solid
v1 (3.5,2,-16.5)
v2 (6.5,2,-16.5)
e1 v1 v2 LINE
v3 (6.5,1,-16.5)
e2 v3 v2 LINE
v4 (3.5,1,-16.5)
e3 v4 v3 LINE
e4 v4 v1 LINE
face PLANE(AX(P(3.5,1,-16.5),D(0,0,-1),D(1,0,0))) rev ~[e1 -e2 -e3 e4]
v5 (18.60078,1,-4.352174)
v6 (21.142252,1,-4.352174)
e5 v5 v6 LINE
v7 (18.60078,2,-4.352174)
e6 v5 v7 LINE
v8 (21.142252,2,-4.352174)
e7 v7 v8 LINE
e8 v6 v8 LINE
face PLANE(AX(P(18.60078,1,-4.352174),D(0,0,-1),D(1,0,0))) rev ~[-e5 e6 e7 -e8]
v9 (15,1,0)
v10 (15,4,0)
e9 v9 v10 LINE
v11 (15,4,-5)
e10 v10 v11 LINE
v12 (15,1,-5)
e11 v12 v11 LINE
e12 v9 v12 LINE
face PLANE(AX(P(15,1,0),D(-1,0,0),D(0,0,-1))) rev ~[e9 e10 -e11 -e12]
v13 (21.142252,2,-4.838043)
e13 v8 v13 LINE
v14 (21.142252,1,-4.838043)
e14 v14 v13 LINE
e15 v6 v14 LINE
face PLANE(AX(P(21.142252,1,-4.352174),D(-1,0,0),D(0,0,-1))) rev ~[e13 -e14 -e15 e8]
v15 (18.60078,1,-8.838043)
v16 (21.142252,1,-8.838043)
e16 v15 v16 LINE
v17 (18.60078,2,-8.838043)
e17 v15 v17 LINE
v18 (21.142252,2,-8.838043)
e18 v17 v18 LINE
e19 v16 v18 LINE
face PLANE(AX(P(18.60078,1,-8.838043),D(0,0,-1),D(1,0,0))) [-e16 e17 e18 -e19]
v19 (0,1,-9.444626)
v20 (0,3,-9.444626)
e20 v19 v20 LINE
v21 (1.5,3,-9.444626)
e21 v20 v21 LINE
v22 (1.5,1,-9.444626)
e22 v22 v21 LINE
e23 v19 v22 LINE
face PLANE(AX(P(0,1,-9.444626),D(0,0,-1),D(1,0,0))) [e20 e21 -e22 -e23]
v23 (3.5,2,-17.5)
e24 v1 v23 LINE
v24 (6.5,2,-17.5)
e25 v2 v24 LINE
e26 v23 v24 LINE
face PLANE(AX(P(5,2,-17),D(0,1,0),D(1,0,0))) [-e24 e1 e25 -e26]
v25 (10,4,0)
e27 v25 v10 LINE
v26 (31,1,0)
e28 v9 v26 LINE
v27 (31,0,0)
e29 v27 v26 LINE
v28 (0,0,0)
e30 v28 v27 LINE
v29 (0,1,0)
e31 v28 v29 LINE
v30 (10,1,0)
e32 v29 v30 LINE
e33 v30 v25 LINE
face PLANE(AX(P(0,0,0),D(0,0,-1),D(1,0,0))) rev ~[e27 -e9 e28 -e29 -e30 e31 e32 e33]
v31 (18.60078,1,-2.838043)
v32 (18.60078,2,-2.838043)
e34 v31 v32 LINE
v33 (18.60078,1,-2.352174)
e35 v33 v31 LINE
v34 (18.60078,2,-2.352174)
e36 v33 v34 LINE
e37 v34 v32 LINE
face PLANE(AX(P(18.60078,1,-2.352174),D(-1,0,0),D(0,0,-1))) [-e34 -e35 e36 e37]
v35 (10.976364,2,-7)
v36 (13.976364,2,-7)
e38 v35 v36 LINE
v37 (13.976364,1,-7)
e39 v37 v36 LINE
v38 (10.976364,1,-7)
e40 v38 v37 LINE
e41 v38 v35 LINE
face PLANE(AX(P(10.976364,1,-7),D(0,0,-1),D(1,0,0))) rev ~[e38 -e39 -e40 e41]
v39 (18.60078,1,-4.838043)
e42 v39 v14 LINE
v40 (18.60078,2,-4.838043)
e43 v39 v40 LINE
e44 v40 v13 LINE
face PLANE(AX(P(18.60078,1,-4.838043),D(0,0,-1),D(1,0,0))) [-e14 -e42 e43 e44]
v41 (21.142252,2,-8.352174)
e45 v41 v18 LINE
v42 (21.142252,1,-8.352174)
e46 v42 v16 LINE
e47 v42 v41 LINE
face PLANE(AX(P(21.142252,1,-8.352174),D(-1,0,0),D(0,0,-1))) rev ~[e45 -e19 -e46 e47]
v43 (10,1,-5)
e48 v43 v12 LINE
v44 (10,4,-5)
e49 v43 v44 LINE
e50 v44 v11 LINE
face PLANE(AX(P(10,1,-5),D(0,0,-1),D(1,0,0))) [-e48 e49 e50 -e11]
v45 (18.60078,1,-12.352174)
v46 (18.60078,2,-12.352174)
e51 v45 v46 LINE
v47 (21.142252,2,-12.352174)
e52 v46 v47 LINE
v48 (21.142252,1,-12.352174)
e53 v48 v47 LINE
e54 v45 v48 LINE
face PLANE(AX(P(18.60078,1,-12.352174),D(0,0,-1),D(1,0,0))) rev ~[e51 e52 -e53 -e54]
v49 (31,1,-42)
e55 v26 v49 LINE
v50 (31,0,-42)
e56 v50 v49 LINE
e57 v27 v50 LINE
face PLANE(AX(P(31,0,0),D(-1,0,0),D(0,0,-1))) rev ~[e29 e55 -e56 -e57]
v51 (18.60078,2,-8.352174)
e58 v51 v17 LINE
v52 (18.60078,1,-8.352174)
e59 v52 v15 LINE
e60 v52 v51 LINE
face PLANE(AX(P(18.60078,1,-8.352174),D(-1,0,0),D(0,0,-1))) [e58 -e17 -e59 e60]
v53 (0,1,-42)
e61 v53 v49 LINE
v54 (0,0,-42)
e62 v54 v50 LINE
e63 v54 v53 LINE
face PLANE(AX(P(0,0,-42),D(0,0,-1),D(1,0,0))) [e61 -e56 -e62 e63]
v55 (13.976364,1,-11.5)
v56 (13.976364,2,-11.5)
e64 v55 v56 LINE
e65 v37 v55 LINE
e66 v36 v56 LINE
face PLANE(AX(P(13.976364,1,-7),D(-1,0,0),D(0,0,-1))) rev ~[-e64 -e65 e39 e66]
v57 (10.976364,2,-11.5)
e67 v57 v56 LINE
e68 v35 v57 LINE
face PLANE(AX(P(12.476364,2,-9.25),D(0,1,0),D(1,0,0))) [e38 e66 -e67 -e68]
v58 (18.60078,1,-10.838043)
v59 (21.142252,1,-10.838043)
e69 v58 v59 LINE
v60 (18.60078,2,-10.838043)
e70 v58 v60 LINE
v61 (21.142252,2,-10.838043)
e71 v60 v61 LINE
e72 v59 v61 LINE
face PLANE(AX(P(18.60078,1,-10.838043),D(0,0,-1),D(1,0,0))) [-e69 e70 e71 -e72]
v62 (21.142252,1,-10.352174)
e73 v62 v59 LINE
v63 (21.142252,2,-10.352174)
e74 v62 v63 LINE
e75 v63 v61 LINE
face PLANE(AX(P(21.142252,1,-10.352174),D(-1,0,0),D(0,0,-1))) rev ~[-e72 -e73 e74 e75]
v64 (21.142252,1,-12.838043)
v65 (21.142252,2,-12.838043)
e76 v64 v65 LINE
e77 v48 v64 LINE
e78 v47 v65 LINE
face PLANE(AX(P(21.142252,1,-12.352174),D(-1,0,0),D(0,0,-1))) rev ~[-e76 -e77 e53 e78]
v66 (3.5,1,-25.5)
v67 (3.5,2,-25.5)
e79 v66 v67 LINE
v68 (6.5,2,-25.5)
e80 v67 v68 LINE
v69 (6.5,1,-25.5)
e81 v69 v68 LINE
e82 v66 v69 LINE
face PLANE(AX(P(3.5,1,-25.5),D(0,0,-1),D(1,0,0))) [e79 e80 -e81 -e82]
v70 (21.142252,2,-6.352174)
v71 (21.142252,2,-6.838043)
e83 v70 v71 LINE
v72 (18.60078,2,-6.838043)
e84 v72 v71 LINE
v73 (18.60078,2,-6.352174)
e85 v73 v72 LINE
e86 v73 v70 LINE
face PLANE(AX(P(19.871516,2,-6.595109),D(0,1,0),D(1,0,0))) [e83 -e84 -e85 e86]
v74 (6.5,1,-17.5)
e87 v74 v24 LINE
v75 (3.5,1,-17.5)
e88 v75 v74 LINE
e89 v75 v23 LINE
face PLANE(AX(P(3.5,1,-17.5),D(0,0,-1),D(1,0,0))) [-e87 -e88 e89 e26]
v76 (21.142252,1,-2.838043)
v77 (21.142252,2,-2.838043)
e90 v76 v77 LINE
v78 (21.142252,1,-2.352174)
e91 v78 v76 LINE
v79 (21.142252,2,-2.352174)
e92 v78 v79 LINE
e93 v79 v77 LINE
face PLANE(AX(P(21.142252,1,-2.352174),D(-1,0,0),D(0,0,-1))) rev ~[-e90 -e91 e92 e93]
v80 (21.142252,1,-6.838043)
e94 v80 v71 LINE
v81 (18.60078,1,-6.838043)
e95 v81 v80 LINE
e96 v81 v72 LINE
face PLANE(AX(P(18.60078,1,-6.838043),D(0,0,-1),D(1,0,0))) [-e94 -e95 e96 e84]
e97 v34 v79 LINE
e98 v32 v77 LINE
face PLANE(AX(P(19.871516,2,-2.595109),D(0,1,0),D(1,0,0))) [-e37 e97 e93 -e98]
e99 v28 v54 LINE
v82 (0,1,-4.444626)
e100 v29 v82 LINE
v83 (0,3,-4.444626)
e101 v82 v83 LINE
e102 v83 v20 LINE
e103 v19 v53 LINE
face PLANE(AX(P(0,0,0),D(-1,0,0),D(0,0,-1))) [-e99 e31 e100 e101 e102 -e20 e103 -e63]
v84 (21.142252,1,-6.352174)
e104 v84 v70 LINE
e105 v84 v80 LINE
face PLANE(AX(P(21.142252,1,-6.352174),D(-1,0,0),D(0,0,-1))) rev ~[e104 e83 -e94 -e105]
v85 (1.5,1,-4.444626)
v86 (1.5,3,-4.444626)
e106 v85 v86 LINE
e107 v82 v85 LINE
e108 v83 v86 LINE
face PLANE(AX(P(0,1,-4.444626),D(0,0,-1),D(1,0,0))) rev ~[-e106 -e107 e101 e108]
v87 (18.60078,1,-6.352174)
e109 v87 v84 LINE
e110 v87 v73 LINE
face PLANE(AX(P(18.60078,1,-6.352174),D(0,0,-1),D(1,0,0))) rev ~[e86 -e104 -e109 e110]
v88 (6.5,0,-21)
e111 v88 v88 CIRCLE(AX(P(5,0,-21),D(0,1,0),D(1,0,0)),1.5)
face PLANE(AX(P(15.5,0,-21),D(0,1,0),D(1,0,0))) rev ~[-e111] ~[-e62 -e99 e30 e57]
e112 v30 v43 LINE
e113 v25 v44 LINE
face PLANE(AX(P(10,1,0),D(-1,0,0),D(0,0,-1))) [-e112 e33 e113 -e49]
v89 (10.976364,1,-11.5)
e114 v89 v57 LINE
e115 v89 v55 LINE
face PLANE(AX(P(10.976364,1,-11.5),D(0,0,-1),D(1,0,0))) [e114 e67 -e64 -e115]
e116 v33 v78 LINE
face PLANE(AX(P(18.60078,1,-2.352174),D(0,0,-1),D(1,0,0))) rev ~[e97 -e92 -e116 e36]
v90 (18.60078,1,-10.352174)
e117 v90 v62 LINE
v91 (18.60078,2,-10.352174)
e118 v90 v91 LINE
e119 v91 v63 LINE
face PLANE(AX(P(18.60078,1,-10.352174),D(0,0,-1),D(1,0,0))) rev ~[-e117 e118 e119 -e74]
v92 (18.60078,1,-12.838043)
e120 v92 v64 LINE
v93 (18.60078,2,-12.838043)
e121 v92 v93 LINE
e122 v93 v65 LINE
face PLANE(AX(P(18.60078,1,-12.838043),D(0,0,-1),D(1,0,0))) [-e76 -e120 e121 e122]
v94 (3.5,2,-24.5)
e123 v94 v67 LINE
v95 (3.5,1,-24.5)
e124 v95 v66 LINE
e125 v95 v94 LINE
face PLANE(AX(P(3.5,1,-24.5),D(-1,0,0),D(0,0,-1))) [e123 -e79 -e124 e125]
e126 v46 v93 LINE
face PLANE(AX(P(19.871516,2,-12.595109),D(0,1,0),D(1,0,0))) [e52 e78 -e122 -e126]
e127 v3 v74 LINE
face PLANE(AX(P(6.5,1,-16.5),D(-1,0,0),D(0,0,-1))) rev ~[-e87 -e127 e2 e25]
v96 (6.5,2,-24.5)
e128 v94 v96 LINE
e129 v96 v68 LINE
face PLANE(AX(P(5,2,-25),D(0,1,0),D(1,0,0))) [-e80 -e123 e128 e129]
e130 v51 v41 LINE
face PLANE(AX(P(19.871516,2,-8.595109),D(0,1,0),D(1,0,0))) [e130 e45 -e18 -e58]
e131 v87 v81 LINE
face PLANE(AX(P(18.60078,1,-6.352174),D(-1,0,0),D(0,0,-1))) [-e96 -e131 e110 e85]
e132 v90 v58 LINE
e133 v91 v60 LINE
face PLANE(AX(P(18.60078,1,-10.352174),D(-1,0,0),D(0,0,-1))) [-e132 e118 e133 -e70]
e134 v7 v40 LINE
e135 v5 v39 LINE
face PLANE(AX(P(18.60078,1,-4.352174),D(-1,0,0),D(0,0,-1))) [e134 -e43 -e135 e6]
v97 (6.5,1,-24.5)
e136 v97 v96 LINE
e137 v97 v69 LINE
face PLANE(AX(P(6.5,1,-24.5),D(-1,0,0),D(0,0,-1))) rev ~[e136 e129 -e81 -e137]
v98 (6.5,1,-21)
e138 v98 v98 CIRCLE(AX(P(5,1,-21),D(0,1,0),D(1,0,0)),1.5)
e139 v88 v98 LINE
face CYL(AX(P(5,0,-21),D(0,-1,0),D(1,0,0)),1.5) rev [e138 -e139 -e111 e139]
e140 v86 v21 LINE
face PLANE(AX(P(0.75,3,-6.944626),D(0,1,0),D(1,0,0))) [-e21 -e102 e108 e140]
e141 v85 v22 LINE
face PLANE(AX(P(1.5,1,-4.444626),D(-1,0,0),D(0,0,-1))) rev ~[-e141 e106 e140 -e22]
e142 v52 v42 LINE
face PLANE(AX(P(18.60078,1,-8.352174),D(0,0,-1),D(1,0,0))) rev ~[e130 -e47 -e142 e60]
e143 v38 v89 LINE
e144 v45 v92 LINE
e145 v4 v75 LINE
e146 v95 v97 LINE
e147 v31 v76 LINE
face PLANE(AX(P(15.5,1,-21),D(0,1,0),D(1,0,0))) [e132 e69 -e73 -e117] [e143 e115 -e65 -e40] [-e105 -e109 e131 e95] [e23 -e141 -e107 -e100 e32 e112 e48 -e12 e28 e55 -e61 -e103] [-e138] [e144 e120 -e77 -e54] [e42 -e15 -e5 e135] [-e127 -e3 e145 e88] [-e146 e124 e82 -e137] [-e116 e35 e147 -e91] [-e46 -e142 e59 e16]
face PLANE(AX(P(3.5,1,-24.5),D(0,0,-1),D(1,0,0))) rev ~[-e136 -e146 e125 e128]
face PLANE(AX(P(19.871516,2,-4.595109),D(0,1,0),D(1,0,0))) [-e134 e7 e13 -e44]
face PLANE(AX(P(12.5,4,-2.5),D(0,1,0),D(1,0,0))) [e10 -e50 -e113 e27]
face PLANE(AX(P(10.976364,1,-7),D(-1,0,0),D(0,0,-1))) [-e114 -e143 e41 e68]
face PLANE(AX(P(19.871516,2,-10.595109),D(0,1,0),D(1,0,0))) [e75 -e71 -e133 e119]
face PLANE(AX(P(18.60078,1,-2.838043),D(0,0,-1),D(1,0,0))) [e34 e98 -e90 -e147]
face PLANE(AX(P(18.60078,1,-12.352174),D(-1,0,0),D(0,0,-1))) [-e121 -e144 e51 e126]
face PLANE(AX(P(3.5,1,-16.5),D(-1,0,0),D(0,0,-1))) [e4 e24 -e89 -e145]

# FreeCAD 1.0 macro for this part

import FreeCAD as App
import Part
import Sketcher

V = App.Vector
Q = App.Units.Quantity


def add_polygon(sketch, points):
    """Adds a closed chain of lines whose ends are joined by coincident constraints."""
    first, n = sketch.GeometryCount, len(points)
    for a, b in zip(points, points[1:] + points[:1]):
        sketch.addGeometry(Part.LineSegment(App.Vector(*a, 0), App.Vector(*b, 0)), False)
    for i in range(n):
        sketch.addConstraint(Sketcher.Constraint("Coincident", first + i, 2, first + (i + 1) % n, 1))

doc = App.newDocument("Part")
body = doc.addObject("PartDesign::Body", "Body")

# Sketch on XZ plane
sketch1 = body.newObject("Sketcher::SketchObject", "Sketch")
sketch1.AttachmentSupport = (doc.getObject("XZ_Plane"), [""])
sketch1.MapMode = "FlatFace"
add_polygon(sketch1, [(0, -42), (0, 0), (31, 0), (31, -42)])  # lines 0-3
sketch1.addGeometry(Part.Circle(V(5, -21, 0), V(0, 0, 1), 1.5), False)  # 4
sketch1.addConstraint(Sketcher.Constraint("Vertical", 0))
sketch1.addConstraint(Sketcher.Constraint("Horizontal", 1))
sketch1.addConstraint(Sketcher.Constraint("Vertical", 2))
sketch1.addConstraint(Sketcher.Constraint("Horizontal", 3))
sketch1.addConstraint(Sketcher.Constraint("Coincident", 0, 2, -1, 1))
sketch1.addConstraint(Sketcher.Constraint("Diameter", 4, Q("3 mm")))
sketch1.addConstraint(Sketcher.Constraint("DistanceX", 1, 1, 1, 2, Q("31 mm")))
sketch1.addConstraint(Sketcher.Constraint("DistanceY", 0, 1, 0, 2, Q("42 mm")))
sketch1.addConstraint(Sketcher.Constraint("DistanceX", -1, 1, 4, 3, Q("5 mm")))
sketch1.addConstraint(Sketcher.Constraint("DistanceY", 4, 3, -1, 1, Q("21 mm")))
pad1 = body.newObject("PartDesign::Pad", "Pad")
pad1.Profile = sketch1
pad1.Length = 1
pad1.Reversed = True

# Sketch on XZ plane
sketch2 = body.newObject("Sketcher::SketchObject", "Sketch001")
sketch2.AttachmentSupport = (doc.getObject("XZ_Plane"), [""])
sketch2.MapMode = "FlatFace"
sketch2.AttachmentOffset = App.Placement(V(0, 0, -1), App.Rotation())
add_polygon(sketch2, [(10, -5), (10, 0), (15, 0), (15, -5)])  # lines 0-3
sketch2.addConstraint(Sketcher.Constraint("Vertical", 0))
sketch2.addConstraint(Sketcher.Constraint("Horizontal", 1))
sketch2.addConstraint(Sketcher.Constraint("Vertical", 2))
sketch2.addConstraint(Sketcher.Constraint("Horizontal", 3))
sketch2.addConstraint(Sketcher.Constraint("PointOnObject", 0, 2, -1))
sketch2.addConstraint(Sketcher.Constraint("Equal", 3, 0))
sketch2.addConstraint(Sketcher.Constraint("DistanceX", 1, 1, 1, 2, Q("5 mm")))
sketch2.addConstraint(Sketcher.Constraint("DistanceX", -1, 1, 0, 2, Q("10 mm")))
pad2 = body.newObject("PartDesign::Pad", "Pad001")
pad2.Profile = sketch2
pad2.Length = 3
pad2.Reversed = True

# Sketch on XZ plane
sketch3 = body.newObject("Sketcher::SketchObject", "Sketch002")
sketch3.AttachmentSupport = (doc.getObject("XZ_Plane"), [""])
sketch3.MapMode = "FlatFace"
sketch3.AttachmentOffset = App.Placement(V(0, 0, -1), App.Rotation())
add_polygon(sketch3, [(10.98, -11.5), (10.98, -7), (13.98, -7), (13.98, -11.5)])  # lines 0-3
add_polygon(sketch3, [(18.6, -12.84), (18.6, -12.35), (21.14, -12.35), (21.14, -12.84)])  # lines 4-7
add_polygon(sketch3, [(18.6, -10.84), (18.6, -10.35), (21.14, -10.35), (21.14, -10.84)])  # lines 8-11
add_polygon(sketch3, [(18.6, -8.84), (18.6, -8.35), (21.14, -8.35), (21.14, -8.84)])  # lines 12-15
add_polygon(sketch3, [(18.6, -6.84), (18.6, -6.35), (21.14, -6.35), (21.14, -6.84)])  # lines 16-19
add_polygon(sketch3, [(18.6, -4.84), (18.6, -4.35), (21.14, -4.35), (21.14, -4.84)])  # lines 20-23
add_polygon(sketch3, [(18.6, -2.84), (18.6, -2.35), (21.14, -2.35), (21.14, -2.84)])  # lines 24-27
sketch3.addConstraint(Sketcher.Constraint("Vertical", 0))
sketch3.addConstraint(Sketcher.Constraint("Horizontal", 1))
sketch3.addConstraint(Sketcher.Constraint("Vertical", 2))
sketch3.addConstraint(Sketcher.Constraint("Horizontal", 3))
sketch3.addConstraint(Sketcher.Constraint("Vertical", 4))
sketch3.addConstraint(Sketcher.Constraint("Horizontal", 5))
sketch3.addConstraint(Sketcher.Constraint("Vertical", 6))
sketch3.addConstraint(Sketcher.Constraint("Horizontal", 7))
sketch3.addConstraint(Sketcher.Constraint("Vertical", 8))
sketch3.addConstraint(Sketcher.Constraint("Horizontal", 9))
sketch3.addConstraint(Sketcher.Constraint("Vertical", 10))
sketch3.addConstraint(Sketcher.Constraint("Horizontal", 11))
sketch3.addConstraint(Sketcher.Constraint("Vertical", 12))
sketch3.addConstraint(Sketcher.Constraint("Horizontal", 13))
sketch3.addConstraint(Sketcher.Constraint("Vertical", 14))
sketch3.addConstraint(Sketcher.Constraint("Horizontal", 15))
sketch3.addConstraint(Sketcher.Constraint("Vertical", 16))
sketch3.addConstraint(Sketcher.Constraint("Horizontal", 17))
sketch3.addConstraint(Sketcher.Constraint("Vertical", 18))
sketch3.addConstraint(Sketcher.Constraint("Horizontal", 19))
sketch3.addConstraint(Sketcher.Constraint("Vertical", 20))
sketch3.addConstraint(Sketcher.Constraint("Horizontal", 21))
sketch3.addConstraint(Sketcher.Constraint("Vertical", 22))
sketch3.addConstraint(Sketcher.Constraint("Horizontal", 23))
sketch3.addConstraint(Sketcher.Constraint("Vertical", 24))
sketch3.addConstraint(Sketcher.Constraint("Horizontal", 25))
sketch3.addConstraint(Sketcher.Constraint("Vertical", 26))
sketch3.addConstraint(Sketcher.Constraint("Horizontal", 27))
sketch3.addConstraint(Sketcher.Constraint("Vertical", 7, 2, 8, 2))
sketch3.addConstraint(Sketcher.Constraint("Vertical", 6, 2, 9, 2))
sketch3.addConstraint(Sketcher.Constraint("Vertical", 11, 2, 12, 2))
sketch3.addConstraint(Sketcher.Constraint("Vertical", 10, 2, 13, 2))
sketch3.addConstraint(Sketcher.Constraint("Vertical", 15, 2, 16, 2))
sketch3.addConstraint(Sketcher.Constraint("Vertical", 14, 2, 17, 2))
sketch3.addConstraint(Sketcher.Constraint("Vertical", 19, 2, 20, 2))
sketch3.addConstraint(Sketcher.Constraint("Vertical", 18, 2, 21, 2))
sketch3.addConstraint(Sketcher.Constraint("Vertical", 23, 2, 24, 2))
sketch3.addConstraint(Sketcher.Constraint("Vertical", 22, 2, 25, 2))
sketch3.addConstraint(Sketcher.Constraint("Equal", 6, 8))
sketch3.addConstraint(Sketcher.Constraint("Equal", 10, 12))
sketch3.addConstraint(Sketcher.Constraint("Equal", 14, 16))
sketch3.addConstraint(Sketcher.Constraint("Equal", 18, 20))
sketch3.addConstraint(Sketcher.Constraint("Equal", 22, 24))
sketch3.addConstraint(Sketcher.Constraint("DistanceX", 1, 1, 1, 2, Q("3 mm")))
sketch3.addConstraint(Sketcher.Constraint("DistanceY", 0, 1, 0, 2, Q("4.5 mm")))
sketch3.addConstraint(Sketcher.Constraint("DistanceY", 0, 2, -1, 1, Q("7 mm")))
sketch3.addConstraint(Sketcher.Constraint("DistanceY", 4, 2, 8, 2, Q("2 mm")))
sketch3.addConstraint(Sketcher.Constraint("DistanceY", 8, 2, 12, 2, Q("2 mm")))
sketch3.addConstraint(Sketcher.Constraint("DistanceY", 12, 2, 16, 2, Q("2 mm")))
sketch3.addConstraint(Sketcher.Constraint("DistanceY", 16, 2, 20, 2, Q("2 mm")))
sketch3.addConstraint(Sketcher.Constraint("DistanceY", 20, 2, 24, 2, Q("2 mm")))
sketch3.addConstraint(Sketcher.Constraint("DistanceY", 4, 1, 4, 2, Q("0.48587 mm")))
sketch3.addConstraint(Sketcher.Constraint("DistanceX", 5, 1, 5, 2, Q("2.541472 mm")))
sketch3.addConstraint(Sketcher.Constraint("DistanceX", -1, 1, 4, 2, Q("18.60078 mm")))
sketch3.addConstraint(Sketcher.Constraint("DistanceX", 2, 2, 5, 2, Q("7.165888 mm")))
sketch3.addConstraint(Sketcher.Constraint("DistanceY", 4, 2, -1, 1, Q("12.352174 mm")))
pad3 = body.newObject("PartDesign::Pad", "Pad002")
pad3.Profile = sketch3
pad3.Length = 1
pad3.Reversed = True

# Sketch on XZ plane
sketch4 = body.newObject("Sketcher::SketchObject", "Sketch003")
sketch4.AttachmentSupport = (doc.getObject("XZ_Plane"), [""])
sketch4.MapMode = "FlatFace"
sketch4.AttachmentOffset = App.Placement(V(0, 0, -1), App.Rotation())
add_polygon(sketch4, [(3.5, -25.5), (3.5, -24.5), (6.5, -24.5), (6.5, -25.5)])  # lines 0-3
add_polygon(sketch4, [(3.5, -17.5), (3.5, -16.5), (6.5, -16.5), (6.5, -17.5)])  # lines 4-7
sketch4.addConstraint(Sketcher.Constraint("Vertical", 0))
sketch4.addConstraint(Sketcher.Constraint("Horizontal", 1))
sketch4.addConstraint(Sketcher.Constraint("Vertical", 2))
sketch4.addConstraint(Sketcher.Constraint("Horizontal", 3))
sketch4.addConstraint(Sketcher.Constraint("Vertical", 4))
sketch4.addConstraint(Sketcher.Constraint("Horizontal", 5))
sketch4.addConstraint(Sketcher.Constraint("Vertical", 6))
sketch4.addConstraint(Sketcher.Constraint("Horizontal", 7))
sketch4.addConstraint(Sketcher.Constraint("Vertical", 3, 2, 4, 2))
sketch4.addConstraint(Sketcher.Constraint("Vertical", 2, 2, 5, 2))
sketch4.addConstraint(Sketcher.Constraint("Equal", 2, 4))
sketch4.addConstraint(Sketcher.Constraint("DistanceX", 1, 1, 1, 2, Q("3 mm")))
sketch4.addConstraint(Sketcher.Constraint("DistanceY", 0, 1, 0, 2, Q("1 mm")))
sketch4.addConstraint(Sketcher.Constraint("DistanceY", 0, 2, 4, 2, Q("8 mm")))
sketch4.addConstraint(Sketcher.Constraint("DistanceX", -1, 1, 0, 2, Q("3.5 mm")))
sketch4.addConstraint(Sketcher.Constraint("DistanceY", 0, 2, -1, 1, Q("24.5 mm")))
pad4 = body.newObject("PartDesign::Pad", "Pad003")
pad4.Profile = sketch4
pad4.Length = 1
pad4.Reversed = True

# Sketch on XZ plane
sketch5 = body.newObject("Sketcher::SketchObject", "Sketch004")
sketch5.AttachmentSupport = (doc.getObject("XZ_Plane"), [""])
sketch5.MapMode = "FlatFace"
sketch5.AttachmentOffset = App.Placement(V(0, 0, -1), App.Rotation())
add_polygon(sketch5, [(0, -9.4), (0, -4.4), (1.5, -4.4), (1.5, -9.4)])  # lines 0-3
sketch5.addConstraint(Sketcher.Constraint("Vertical", 0))
sketch5.addConstraint(Sketcher.Constraint("Horizontal", 1))
sketch5.addConstraint(Sketcher.Constraint("Vertical", 2))
sketch5.addConstraint(Sketcher.Constraint("Horizontal", 3))
sketch5.addConstraint(Sketcher.Constraint("PointOnObject", 0, 2, -2))
sketch5.addConstraint(Sketcher.Constraint("DistanceY", 0, 1, 0, 2, Q("5 mm")))
sketch5.addConstraint(Sketcher.Constraint("DistanceX", 1, 1, 1, 2, Q("1.5 mm")))
sketch5.addConstraint(Sketcher.Constraint("DistanceY", 0, 2, -1, 1, Q("4.444626 mm")))
pad5 = body.newObject("PartDesign::Pad", "Pad004")
pad5.Profile = sketch5
pad5.Length = 2
pad5.Reversed = True

doc.recompute()
